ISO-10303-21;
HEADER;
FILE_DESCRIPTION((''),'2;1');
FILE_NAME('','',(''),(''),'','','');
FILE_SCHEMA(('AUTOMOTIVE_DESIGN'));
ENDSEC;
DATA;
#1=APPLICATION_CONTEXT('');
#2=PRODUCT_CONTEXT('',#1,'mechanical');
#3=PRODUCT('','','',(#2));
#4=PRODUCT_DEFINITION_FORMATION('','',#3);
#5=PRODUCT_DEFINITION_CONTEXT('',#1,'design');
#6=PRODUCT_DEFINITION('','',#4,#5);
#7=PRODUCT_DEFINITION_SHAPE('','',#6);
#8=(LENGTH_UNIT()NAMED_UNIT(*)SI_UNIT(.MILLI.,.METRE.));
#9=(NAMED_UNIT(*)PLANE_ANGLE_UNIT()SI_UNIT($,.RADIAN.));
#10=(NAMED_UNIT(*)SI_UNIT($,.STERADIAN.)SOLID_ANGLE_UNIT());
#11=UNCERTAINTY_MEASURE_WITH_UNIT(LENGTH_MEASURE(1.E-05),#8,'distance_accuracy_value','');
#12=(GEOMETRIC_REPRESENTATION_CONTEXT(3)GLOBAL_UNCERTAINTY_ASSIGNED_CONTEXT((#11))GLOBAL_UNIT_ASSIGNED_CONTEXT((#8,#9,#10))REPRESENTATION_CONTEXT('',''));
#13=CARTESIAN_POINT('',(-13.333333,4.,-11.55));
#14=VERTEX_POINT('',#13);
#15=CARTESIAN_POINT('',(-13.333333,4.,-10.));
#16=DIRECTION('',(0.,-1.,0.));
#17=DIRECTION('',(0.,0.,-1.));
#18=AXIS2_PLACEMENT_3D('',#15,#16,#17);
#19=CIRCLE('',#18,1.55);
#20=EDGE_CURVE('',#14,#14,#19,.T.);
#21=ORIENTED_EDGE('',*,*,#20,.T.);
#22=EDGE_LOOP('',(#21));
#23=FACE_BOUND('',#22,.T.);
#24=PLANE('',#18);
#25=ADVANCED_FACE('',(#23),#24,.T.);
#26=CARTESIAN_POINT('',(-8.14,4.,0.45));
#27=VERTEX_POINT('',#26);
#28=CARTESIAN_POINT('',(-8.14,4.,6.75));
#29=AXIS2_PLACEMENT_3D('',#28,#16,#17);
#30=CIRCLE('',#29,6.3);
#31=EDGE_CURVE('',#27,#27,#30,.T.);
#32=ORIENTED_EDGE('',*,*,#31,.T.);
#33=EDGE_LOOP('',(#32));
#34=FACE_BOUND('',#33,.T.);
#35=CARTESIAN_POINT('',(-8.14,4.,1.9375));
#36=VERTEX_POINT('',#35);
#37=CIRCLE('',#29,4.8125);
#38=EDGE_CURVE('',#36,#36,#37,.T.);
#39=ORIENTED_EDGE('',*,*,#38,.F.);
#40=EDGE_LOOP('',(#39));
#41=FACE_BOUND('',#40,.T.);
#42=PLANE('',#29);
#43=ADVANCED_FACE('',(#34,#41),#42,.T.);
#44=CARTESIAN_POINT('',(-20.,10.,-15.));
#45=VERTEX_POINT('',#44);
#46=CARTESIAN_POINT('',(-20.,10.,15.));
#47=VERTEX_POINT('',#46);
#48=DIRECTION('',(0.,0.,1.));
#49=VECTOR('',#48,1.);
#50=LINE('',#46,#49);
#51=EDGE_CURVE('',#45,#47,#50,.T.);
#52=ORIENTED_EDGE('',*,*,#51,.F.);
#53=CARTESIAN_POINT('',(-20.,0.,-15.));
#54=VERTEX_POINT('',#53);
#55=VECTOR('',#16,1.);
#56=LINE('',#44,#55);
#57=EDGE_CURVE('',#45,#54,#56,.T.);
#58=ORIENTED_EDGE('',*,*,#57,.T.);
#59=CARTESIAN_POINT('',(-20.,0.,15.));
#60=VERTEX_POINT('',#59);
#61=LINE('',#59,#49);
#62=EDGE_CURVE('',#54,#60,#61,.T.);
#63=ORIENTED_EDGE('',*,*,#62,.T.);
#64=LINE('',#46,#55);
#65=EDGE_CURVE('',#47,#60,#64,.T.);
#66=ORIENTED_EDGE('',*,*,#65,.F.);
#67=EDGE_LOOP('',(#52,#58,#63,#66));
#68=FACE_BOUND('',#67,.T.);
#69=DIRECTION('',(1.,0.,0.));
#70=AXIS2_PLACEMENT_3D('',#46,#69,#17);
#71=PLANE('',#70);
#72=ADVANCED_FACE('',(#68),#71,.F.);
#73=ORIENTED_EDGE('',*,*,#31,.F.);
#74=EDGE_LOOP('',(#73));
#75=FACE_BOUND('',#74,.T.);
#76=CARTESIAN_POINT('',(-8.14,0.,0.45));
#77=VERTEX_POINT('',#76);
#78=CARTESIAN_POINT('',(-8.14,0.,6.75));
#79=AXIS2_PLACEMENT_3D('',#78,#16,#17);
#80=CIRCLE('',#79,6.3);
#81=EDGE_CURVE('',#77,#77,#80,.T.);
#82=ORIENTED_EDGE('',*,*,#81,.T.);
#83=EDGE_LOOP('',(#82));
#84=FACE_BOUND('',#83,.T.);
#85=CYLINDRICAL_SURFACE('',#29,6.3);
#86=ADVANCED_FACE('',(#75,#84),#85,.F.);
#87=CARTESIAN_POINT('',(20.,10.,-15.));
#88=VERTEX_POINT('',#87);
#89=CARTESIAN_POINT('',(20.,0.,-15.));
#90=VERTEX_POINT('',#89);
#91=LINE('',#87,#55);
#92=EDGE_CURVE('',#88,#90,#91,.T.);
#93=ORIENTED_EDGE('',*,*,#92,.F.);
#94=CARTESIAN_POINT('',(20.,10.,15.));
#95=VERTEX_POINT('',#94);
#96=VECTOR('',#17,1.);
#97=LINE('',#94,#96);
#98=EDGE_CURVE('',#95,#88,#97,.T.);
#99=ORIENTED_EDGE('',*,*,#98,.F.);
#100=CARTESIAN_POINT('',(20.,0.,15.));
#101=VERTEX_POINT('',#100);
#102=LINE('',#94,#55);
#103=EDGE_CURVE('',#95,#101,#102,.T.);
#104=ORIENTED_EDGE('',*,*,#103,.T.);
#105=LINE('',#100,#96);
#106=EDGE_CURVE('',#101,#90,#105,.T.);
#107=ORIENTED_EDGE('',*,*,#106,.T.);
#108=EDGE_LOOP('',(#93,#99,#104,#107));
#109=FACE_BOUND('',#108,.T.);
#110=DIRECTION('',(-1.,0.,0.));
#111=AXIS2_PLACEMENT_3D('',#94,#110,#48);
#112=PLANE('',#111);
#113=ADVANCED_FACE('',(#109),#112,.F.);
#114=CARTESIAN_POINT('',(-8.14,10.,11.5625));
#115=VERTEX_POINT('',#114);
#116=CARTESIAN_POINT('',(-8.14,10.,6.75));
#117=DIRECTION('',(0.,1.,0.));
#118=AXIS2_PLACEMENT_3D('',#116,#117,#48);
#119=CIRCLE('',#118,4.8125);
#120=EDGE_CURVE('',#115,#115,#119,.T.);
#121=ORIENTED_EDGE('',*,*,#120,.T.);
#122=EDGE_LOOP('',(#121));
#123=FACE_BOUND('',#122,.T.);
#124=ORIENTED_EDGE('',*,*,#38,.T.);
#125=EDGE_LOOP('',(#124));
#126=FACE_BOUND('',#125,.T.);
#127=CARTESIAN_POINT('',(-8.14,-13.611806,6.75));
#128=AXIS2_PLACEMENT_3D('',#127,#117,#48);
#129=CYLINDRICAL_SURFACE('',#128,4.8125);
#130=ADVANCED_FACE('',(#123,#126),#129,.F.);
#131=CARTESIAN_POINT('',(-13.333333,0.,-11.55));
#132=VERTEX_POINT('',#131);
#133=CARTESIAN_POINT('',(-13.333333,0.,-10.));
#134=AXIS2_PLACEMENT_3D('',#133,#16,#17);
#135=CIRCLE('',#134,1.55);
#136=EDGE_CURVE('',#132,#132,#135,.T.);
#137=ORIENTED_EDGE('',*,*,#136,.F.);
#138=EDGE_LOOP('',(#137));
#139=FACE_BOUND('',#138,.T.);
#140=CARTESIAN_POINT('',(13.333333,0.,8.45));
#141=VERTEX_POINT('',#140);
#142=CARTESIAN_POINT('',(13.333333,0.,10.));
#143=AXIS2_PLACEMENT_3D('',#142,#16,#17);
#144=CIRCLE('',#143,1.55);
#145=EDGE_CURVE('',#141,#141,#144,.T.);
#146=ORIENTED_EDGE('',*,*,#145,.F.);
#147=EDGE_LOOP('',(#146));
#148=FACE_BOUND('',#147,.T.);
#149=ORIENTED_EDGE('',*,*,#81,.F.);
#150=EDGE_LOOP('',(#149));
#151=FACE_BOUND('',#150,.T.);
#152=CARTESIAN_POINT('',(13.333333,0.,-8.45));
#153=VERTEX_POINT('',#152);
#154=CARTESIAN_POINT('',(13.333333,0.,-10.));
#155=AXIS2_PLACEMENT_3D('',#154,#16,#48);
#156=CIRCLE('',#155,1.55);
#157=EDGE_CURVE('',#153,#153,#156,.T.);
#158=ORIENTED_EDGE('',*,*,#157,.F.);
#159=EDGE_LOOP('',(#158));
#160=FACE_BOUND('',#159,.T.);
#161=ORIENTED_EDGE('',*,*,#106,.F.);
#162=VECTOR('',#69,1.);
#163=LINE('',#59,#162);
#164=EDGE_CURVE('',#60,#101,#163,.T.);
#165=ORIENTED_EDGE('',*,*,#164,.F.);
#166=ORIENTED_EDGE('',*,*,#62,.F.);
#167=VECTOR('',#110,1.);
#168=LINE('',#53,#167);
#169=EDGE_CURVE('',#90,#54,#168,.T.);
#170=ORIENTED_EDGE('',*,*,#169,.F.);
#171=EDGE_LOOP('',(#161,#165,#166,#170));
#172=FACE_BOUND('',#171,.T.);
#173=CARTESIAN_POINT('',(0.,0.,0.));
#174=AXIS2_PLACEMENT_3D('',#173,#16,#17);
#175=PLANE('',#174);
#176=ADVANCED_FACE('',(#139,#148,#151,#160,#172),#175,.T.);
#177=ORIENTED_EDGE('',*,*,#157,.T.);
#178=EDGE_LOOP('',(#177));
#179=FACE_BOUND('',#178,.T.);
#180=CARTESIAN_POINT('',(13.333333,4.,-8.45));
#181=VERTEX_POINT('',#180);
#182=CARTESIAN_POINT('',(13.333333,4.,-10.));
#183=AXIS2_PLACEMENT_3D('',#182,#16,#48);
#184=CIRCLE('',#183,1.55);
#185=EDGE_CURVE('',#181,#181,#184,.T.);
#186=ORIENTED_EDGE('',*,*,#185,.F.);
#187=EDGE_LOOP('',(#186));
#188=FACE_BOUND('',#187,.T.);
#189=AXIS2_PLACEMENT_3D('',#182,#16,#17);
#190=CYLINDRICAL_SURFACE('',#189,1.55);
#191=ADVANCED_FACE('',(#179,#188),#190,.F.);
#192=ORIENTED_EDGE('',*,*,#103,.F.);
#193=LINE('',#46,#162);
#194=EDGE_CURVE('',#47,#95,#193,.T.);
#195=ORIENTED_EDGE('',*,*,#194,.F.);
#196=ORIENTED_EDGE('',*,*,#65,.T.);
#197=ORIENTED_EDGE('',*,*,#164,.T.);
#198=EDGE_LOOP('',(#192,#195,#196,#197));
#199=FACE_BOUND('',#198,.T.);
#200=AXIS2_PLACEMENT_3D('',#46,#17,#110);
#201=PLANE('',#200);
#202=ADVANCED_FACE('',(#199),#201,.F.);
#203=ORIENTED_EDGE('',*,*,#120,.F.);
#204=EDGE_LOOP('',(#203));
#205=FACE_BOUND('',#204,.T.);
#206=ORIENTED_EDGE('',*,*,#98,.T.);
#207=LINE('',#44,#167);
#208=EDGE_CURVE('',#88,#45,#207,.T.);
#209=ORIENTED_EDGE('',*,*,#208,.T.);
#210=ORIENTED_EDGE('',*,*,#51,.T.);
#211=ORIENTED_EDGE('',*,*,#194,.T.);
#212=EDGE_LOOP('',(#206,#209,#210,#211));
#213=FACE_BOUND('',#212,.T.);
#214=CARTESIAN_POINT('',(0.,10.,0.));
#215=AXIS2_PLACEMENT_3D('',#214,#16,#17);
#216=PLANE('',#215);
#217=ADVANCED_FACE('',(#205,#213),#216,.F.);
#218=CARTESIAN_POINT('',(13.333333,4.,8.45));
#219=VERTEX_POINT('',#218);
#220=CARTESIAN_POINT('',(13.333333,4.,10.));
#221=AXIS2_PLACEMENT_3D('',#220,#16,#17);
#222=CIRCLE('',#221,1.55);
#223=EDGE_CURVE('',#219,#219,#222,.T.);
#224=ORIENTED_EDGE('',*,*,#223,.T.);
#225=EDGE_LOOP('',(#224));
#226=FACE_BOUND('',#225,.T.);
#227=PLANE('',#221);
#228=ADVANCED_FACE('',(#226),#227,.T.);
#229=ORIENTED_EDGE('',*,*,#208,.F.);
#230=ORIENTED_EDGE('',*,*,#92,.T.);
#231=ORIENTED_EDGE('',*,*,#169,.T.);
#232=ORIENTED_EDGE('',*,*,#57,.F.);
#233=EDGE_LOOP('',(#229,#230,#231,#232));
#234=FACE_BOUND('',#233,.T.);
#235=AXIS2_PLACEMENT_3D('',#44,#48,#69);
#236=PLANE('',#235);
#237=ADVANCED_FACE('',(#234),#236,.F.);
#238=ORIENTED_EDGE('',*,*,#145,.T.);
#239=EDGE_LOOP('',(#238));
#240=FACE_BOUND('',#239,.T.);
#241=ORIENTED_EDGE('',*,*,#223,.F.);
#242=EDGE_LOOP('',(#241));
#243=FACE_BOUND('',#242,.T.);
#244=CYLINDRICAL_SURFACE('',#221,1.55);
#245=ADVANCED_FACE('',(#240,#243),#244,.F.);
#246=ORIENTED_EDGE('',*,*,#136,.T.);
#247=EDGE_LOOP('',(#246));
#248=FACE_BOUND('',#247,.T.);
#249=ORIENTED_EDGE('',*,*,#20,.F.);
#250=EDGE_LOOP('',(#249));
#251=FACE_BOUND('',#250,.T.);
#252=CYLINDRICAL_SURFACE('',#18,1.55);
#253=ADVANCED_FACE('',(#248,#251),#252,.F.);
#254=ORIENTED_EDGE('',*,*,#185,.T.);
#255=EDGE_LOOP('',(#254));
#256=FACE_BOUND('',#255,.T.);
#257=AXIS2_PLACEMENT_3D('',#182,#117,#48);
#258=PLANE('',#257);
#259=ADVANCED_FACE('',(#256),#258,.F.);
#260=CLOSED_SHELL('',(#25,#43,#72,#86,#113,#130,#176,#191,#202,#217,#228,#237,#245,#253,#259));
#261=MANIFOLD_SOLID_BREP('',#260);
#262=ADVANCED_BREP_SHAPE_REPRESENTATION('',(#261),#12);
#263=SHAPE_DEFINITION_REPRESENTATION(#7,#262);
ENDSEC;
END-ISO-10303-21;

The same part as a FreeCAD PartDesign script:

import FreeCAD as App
import Part
import Sketcher
Q = App.Units.Quantity

doc = App.newDocument("Part")
body = doc.addObject("PartDesign::Body", "Body")

# Sketch on XZ plane
sketch1 = body.newObject("Sketcher::SketchObject", "Sketch")
sketch1.AttachmentSupport = (doc.getObject("XZ_Plane"), [""])
sketch1.MapMode = "FlatFace"
sketch1.addGeometry(Part.LineSegment(App.Vector(-20, -15, 0), App.Vector(-20, 15, 0)), False)
sketch1.addGeometry(Part.LineSegment(App.Vector(-20, 15, 0), App.Vector(20, 15, 0)), False)
sketch1.addGeometry(Part.LineSegment(App.Vector(20, 15, 0), App.Vector(20, -15, 0)), False)
sketch1.addGeometry(Part.LineSegment(App.Vector(20, -15, 0), App.Vector(-20, -15, 0)), False)
sketch1.addConstraint(Sketcher.Constraint("Coincident", 0, 2, 1, 1))
sketch1.addConstraint(Sketcher.Constraint("Coincident", 1, 2, 2, 1))
sketch1.addConstraint(Sketcher.Constraint("Coincident", 2, 2, 3, 1))
sketch1.addConstraint(Sketcher.Constraint("Coincident", 3, 2, 0, 1))
sketch1.addConstraint(Sketcher.Constraint("Vertical", 0))
sketch1.addConstraint(Sketcher.Constraint("Horizontal", 1))
sketch1.addConstraint(Sketcher.Constraint("Vertical", 2))
sketch1.addConstraint(Sketcher.Constraint("Horizontal", 3))
sketch1.addConstraint(Sketcher.Constraint("Symmetric", 0, 2, 2, 2, -1, 1))
sketch1.addConstraint(Sketcher.Constraint("DistanceX", 1, 1, 1, 2, Q("40 mm")))
sketch1.addConstraint(Sketcher.Constraint("DistanceY", 0, 1, 0, 2, Q("30 mm")))
pad1 = body.newObject("PartDesign::Pad", "Pad")
pad1.Profile = sketch1
pad1.Length = 10
pad1.Reversed = True

# Sketch on XZ plane
sketch2 = body.newObject("Sketcher::SketchObject", "Sketch001")
sketch2.AttachmentSupport = (doc.getObject("XZ_Plane"), [""])
sketch2.MapMode = "FlatFace"
sketch2.addGeometry(Part.Circle(App.Vector(13.3, 10, 0), App.Vector(0, 0, 1), 1.6), False)
sketch2.addGeometry(Part.Circle(App.Vector(13.3, -10, 0), App.Vector(0, 0, 1), 1.6), False)
sketch2.addGeometry(Part.Circle(App.Vector(-13.3, -10, 0), App.Vector(0, 0, 1), 1.6), False)
sketch2.addGeometry(Part.Circle(App.Vector(-8.1, 6.8, 0), App.Vector(0, 0, 1), 6.3), False)
sketch2.addConstraint(Sketcher.Constraint("Equal", 0, 1))
sketch2.addConstraint(Sketcher.Constraint("Equal", 1, 2))
sketch2.addConstraint(Sketcher.Constraint("Symmetric", 0, 3, 2, 3, -1, 1))
sketch2.addConstraint(Sketcher.Constraint("Symmetric", 1, 3, 2, 3, -2))
sketch2.addConstraint(Sketcher.Constraint("Diameter", 0, Q("3.1 mm")))
sketch2.addConstraint(Sketcher.Constraint("Diameter", 3, Q("12.6 mm")))
sketch2.addConstraint(Sketcher.Constraint("DistanceY", -1, 1, 0, 3, Q("10 mm")))
sketch2.addConstraint(Sketcher.Constraint("DistanceX", 3, 3, -1, 1, Q("8.14 mm")))
sketch2.addConstraint(Sketcher.Constraint("DistanceY", -1, 1, 3, 3, Q("6.75 mm")))
sketch2.addConstraint(Sketcher.Constraint("DistanceX", -1, 1, 0, 3, Q("13.333333 mm")))
pocket1 = body.newObject("PartDesign::Pocket", "Pocket")
pocket1.Profile = sketch2
pocket1.Length = 4

# Sketch on XZ plane
sketch3 = body.newObject("Sketcher::SketchObject", "Sketch002")
sketch3.AttachmentSupport = (doc.getObject("XZ_Plane"), [""])
sketch3.MapMode = "FlatFace"
sketch3.AttachmentOffset = App.Placement(App.Vector(0, 0, -10), App.Rotation())
sketch3.addGeometry(Part.Circle(App.Vector(-8.1, 6.8, 0), App.Vector(0, 0, 1), 4.8), False)
sketch3.addConstraint(Sketcher.Constraint("Diameter", 0, Q("9.625 mm")))
sketch3.addConstraint(Sketcher.Constraint("DistanceX", 0, 3, -1, 1, Q("8.14 mm")))
sketch3.addConstraint(Sketcher.Constraint("DistanceY", -1, 1, 0, 3, Q("6.75 mm")))
pocket2 = body.newObject("PartDesign::Pocket", "Pocket001")
pocket2.Profile = sketch3
pocket2.Length = 10
pocket2.Reversed = True

doc.recompute()
